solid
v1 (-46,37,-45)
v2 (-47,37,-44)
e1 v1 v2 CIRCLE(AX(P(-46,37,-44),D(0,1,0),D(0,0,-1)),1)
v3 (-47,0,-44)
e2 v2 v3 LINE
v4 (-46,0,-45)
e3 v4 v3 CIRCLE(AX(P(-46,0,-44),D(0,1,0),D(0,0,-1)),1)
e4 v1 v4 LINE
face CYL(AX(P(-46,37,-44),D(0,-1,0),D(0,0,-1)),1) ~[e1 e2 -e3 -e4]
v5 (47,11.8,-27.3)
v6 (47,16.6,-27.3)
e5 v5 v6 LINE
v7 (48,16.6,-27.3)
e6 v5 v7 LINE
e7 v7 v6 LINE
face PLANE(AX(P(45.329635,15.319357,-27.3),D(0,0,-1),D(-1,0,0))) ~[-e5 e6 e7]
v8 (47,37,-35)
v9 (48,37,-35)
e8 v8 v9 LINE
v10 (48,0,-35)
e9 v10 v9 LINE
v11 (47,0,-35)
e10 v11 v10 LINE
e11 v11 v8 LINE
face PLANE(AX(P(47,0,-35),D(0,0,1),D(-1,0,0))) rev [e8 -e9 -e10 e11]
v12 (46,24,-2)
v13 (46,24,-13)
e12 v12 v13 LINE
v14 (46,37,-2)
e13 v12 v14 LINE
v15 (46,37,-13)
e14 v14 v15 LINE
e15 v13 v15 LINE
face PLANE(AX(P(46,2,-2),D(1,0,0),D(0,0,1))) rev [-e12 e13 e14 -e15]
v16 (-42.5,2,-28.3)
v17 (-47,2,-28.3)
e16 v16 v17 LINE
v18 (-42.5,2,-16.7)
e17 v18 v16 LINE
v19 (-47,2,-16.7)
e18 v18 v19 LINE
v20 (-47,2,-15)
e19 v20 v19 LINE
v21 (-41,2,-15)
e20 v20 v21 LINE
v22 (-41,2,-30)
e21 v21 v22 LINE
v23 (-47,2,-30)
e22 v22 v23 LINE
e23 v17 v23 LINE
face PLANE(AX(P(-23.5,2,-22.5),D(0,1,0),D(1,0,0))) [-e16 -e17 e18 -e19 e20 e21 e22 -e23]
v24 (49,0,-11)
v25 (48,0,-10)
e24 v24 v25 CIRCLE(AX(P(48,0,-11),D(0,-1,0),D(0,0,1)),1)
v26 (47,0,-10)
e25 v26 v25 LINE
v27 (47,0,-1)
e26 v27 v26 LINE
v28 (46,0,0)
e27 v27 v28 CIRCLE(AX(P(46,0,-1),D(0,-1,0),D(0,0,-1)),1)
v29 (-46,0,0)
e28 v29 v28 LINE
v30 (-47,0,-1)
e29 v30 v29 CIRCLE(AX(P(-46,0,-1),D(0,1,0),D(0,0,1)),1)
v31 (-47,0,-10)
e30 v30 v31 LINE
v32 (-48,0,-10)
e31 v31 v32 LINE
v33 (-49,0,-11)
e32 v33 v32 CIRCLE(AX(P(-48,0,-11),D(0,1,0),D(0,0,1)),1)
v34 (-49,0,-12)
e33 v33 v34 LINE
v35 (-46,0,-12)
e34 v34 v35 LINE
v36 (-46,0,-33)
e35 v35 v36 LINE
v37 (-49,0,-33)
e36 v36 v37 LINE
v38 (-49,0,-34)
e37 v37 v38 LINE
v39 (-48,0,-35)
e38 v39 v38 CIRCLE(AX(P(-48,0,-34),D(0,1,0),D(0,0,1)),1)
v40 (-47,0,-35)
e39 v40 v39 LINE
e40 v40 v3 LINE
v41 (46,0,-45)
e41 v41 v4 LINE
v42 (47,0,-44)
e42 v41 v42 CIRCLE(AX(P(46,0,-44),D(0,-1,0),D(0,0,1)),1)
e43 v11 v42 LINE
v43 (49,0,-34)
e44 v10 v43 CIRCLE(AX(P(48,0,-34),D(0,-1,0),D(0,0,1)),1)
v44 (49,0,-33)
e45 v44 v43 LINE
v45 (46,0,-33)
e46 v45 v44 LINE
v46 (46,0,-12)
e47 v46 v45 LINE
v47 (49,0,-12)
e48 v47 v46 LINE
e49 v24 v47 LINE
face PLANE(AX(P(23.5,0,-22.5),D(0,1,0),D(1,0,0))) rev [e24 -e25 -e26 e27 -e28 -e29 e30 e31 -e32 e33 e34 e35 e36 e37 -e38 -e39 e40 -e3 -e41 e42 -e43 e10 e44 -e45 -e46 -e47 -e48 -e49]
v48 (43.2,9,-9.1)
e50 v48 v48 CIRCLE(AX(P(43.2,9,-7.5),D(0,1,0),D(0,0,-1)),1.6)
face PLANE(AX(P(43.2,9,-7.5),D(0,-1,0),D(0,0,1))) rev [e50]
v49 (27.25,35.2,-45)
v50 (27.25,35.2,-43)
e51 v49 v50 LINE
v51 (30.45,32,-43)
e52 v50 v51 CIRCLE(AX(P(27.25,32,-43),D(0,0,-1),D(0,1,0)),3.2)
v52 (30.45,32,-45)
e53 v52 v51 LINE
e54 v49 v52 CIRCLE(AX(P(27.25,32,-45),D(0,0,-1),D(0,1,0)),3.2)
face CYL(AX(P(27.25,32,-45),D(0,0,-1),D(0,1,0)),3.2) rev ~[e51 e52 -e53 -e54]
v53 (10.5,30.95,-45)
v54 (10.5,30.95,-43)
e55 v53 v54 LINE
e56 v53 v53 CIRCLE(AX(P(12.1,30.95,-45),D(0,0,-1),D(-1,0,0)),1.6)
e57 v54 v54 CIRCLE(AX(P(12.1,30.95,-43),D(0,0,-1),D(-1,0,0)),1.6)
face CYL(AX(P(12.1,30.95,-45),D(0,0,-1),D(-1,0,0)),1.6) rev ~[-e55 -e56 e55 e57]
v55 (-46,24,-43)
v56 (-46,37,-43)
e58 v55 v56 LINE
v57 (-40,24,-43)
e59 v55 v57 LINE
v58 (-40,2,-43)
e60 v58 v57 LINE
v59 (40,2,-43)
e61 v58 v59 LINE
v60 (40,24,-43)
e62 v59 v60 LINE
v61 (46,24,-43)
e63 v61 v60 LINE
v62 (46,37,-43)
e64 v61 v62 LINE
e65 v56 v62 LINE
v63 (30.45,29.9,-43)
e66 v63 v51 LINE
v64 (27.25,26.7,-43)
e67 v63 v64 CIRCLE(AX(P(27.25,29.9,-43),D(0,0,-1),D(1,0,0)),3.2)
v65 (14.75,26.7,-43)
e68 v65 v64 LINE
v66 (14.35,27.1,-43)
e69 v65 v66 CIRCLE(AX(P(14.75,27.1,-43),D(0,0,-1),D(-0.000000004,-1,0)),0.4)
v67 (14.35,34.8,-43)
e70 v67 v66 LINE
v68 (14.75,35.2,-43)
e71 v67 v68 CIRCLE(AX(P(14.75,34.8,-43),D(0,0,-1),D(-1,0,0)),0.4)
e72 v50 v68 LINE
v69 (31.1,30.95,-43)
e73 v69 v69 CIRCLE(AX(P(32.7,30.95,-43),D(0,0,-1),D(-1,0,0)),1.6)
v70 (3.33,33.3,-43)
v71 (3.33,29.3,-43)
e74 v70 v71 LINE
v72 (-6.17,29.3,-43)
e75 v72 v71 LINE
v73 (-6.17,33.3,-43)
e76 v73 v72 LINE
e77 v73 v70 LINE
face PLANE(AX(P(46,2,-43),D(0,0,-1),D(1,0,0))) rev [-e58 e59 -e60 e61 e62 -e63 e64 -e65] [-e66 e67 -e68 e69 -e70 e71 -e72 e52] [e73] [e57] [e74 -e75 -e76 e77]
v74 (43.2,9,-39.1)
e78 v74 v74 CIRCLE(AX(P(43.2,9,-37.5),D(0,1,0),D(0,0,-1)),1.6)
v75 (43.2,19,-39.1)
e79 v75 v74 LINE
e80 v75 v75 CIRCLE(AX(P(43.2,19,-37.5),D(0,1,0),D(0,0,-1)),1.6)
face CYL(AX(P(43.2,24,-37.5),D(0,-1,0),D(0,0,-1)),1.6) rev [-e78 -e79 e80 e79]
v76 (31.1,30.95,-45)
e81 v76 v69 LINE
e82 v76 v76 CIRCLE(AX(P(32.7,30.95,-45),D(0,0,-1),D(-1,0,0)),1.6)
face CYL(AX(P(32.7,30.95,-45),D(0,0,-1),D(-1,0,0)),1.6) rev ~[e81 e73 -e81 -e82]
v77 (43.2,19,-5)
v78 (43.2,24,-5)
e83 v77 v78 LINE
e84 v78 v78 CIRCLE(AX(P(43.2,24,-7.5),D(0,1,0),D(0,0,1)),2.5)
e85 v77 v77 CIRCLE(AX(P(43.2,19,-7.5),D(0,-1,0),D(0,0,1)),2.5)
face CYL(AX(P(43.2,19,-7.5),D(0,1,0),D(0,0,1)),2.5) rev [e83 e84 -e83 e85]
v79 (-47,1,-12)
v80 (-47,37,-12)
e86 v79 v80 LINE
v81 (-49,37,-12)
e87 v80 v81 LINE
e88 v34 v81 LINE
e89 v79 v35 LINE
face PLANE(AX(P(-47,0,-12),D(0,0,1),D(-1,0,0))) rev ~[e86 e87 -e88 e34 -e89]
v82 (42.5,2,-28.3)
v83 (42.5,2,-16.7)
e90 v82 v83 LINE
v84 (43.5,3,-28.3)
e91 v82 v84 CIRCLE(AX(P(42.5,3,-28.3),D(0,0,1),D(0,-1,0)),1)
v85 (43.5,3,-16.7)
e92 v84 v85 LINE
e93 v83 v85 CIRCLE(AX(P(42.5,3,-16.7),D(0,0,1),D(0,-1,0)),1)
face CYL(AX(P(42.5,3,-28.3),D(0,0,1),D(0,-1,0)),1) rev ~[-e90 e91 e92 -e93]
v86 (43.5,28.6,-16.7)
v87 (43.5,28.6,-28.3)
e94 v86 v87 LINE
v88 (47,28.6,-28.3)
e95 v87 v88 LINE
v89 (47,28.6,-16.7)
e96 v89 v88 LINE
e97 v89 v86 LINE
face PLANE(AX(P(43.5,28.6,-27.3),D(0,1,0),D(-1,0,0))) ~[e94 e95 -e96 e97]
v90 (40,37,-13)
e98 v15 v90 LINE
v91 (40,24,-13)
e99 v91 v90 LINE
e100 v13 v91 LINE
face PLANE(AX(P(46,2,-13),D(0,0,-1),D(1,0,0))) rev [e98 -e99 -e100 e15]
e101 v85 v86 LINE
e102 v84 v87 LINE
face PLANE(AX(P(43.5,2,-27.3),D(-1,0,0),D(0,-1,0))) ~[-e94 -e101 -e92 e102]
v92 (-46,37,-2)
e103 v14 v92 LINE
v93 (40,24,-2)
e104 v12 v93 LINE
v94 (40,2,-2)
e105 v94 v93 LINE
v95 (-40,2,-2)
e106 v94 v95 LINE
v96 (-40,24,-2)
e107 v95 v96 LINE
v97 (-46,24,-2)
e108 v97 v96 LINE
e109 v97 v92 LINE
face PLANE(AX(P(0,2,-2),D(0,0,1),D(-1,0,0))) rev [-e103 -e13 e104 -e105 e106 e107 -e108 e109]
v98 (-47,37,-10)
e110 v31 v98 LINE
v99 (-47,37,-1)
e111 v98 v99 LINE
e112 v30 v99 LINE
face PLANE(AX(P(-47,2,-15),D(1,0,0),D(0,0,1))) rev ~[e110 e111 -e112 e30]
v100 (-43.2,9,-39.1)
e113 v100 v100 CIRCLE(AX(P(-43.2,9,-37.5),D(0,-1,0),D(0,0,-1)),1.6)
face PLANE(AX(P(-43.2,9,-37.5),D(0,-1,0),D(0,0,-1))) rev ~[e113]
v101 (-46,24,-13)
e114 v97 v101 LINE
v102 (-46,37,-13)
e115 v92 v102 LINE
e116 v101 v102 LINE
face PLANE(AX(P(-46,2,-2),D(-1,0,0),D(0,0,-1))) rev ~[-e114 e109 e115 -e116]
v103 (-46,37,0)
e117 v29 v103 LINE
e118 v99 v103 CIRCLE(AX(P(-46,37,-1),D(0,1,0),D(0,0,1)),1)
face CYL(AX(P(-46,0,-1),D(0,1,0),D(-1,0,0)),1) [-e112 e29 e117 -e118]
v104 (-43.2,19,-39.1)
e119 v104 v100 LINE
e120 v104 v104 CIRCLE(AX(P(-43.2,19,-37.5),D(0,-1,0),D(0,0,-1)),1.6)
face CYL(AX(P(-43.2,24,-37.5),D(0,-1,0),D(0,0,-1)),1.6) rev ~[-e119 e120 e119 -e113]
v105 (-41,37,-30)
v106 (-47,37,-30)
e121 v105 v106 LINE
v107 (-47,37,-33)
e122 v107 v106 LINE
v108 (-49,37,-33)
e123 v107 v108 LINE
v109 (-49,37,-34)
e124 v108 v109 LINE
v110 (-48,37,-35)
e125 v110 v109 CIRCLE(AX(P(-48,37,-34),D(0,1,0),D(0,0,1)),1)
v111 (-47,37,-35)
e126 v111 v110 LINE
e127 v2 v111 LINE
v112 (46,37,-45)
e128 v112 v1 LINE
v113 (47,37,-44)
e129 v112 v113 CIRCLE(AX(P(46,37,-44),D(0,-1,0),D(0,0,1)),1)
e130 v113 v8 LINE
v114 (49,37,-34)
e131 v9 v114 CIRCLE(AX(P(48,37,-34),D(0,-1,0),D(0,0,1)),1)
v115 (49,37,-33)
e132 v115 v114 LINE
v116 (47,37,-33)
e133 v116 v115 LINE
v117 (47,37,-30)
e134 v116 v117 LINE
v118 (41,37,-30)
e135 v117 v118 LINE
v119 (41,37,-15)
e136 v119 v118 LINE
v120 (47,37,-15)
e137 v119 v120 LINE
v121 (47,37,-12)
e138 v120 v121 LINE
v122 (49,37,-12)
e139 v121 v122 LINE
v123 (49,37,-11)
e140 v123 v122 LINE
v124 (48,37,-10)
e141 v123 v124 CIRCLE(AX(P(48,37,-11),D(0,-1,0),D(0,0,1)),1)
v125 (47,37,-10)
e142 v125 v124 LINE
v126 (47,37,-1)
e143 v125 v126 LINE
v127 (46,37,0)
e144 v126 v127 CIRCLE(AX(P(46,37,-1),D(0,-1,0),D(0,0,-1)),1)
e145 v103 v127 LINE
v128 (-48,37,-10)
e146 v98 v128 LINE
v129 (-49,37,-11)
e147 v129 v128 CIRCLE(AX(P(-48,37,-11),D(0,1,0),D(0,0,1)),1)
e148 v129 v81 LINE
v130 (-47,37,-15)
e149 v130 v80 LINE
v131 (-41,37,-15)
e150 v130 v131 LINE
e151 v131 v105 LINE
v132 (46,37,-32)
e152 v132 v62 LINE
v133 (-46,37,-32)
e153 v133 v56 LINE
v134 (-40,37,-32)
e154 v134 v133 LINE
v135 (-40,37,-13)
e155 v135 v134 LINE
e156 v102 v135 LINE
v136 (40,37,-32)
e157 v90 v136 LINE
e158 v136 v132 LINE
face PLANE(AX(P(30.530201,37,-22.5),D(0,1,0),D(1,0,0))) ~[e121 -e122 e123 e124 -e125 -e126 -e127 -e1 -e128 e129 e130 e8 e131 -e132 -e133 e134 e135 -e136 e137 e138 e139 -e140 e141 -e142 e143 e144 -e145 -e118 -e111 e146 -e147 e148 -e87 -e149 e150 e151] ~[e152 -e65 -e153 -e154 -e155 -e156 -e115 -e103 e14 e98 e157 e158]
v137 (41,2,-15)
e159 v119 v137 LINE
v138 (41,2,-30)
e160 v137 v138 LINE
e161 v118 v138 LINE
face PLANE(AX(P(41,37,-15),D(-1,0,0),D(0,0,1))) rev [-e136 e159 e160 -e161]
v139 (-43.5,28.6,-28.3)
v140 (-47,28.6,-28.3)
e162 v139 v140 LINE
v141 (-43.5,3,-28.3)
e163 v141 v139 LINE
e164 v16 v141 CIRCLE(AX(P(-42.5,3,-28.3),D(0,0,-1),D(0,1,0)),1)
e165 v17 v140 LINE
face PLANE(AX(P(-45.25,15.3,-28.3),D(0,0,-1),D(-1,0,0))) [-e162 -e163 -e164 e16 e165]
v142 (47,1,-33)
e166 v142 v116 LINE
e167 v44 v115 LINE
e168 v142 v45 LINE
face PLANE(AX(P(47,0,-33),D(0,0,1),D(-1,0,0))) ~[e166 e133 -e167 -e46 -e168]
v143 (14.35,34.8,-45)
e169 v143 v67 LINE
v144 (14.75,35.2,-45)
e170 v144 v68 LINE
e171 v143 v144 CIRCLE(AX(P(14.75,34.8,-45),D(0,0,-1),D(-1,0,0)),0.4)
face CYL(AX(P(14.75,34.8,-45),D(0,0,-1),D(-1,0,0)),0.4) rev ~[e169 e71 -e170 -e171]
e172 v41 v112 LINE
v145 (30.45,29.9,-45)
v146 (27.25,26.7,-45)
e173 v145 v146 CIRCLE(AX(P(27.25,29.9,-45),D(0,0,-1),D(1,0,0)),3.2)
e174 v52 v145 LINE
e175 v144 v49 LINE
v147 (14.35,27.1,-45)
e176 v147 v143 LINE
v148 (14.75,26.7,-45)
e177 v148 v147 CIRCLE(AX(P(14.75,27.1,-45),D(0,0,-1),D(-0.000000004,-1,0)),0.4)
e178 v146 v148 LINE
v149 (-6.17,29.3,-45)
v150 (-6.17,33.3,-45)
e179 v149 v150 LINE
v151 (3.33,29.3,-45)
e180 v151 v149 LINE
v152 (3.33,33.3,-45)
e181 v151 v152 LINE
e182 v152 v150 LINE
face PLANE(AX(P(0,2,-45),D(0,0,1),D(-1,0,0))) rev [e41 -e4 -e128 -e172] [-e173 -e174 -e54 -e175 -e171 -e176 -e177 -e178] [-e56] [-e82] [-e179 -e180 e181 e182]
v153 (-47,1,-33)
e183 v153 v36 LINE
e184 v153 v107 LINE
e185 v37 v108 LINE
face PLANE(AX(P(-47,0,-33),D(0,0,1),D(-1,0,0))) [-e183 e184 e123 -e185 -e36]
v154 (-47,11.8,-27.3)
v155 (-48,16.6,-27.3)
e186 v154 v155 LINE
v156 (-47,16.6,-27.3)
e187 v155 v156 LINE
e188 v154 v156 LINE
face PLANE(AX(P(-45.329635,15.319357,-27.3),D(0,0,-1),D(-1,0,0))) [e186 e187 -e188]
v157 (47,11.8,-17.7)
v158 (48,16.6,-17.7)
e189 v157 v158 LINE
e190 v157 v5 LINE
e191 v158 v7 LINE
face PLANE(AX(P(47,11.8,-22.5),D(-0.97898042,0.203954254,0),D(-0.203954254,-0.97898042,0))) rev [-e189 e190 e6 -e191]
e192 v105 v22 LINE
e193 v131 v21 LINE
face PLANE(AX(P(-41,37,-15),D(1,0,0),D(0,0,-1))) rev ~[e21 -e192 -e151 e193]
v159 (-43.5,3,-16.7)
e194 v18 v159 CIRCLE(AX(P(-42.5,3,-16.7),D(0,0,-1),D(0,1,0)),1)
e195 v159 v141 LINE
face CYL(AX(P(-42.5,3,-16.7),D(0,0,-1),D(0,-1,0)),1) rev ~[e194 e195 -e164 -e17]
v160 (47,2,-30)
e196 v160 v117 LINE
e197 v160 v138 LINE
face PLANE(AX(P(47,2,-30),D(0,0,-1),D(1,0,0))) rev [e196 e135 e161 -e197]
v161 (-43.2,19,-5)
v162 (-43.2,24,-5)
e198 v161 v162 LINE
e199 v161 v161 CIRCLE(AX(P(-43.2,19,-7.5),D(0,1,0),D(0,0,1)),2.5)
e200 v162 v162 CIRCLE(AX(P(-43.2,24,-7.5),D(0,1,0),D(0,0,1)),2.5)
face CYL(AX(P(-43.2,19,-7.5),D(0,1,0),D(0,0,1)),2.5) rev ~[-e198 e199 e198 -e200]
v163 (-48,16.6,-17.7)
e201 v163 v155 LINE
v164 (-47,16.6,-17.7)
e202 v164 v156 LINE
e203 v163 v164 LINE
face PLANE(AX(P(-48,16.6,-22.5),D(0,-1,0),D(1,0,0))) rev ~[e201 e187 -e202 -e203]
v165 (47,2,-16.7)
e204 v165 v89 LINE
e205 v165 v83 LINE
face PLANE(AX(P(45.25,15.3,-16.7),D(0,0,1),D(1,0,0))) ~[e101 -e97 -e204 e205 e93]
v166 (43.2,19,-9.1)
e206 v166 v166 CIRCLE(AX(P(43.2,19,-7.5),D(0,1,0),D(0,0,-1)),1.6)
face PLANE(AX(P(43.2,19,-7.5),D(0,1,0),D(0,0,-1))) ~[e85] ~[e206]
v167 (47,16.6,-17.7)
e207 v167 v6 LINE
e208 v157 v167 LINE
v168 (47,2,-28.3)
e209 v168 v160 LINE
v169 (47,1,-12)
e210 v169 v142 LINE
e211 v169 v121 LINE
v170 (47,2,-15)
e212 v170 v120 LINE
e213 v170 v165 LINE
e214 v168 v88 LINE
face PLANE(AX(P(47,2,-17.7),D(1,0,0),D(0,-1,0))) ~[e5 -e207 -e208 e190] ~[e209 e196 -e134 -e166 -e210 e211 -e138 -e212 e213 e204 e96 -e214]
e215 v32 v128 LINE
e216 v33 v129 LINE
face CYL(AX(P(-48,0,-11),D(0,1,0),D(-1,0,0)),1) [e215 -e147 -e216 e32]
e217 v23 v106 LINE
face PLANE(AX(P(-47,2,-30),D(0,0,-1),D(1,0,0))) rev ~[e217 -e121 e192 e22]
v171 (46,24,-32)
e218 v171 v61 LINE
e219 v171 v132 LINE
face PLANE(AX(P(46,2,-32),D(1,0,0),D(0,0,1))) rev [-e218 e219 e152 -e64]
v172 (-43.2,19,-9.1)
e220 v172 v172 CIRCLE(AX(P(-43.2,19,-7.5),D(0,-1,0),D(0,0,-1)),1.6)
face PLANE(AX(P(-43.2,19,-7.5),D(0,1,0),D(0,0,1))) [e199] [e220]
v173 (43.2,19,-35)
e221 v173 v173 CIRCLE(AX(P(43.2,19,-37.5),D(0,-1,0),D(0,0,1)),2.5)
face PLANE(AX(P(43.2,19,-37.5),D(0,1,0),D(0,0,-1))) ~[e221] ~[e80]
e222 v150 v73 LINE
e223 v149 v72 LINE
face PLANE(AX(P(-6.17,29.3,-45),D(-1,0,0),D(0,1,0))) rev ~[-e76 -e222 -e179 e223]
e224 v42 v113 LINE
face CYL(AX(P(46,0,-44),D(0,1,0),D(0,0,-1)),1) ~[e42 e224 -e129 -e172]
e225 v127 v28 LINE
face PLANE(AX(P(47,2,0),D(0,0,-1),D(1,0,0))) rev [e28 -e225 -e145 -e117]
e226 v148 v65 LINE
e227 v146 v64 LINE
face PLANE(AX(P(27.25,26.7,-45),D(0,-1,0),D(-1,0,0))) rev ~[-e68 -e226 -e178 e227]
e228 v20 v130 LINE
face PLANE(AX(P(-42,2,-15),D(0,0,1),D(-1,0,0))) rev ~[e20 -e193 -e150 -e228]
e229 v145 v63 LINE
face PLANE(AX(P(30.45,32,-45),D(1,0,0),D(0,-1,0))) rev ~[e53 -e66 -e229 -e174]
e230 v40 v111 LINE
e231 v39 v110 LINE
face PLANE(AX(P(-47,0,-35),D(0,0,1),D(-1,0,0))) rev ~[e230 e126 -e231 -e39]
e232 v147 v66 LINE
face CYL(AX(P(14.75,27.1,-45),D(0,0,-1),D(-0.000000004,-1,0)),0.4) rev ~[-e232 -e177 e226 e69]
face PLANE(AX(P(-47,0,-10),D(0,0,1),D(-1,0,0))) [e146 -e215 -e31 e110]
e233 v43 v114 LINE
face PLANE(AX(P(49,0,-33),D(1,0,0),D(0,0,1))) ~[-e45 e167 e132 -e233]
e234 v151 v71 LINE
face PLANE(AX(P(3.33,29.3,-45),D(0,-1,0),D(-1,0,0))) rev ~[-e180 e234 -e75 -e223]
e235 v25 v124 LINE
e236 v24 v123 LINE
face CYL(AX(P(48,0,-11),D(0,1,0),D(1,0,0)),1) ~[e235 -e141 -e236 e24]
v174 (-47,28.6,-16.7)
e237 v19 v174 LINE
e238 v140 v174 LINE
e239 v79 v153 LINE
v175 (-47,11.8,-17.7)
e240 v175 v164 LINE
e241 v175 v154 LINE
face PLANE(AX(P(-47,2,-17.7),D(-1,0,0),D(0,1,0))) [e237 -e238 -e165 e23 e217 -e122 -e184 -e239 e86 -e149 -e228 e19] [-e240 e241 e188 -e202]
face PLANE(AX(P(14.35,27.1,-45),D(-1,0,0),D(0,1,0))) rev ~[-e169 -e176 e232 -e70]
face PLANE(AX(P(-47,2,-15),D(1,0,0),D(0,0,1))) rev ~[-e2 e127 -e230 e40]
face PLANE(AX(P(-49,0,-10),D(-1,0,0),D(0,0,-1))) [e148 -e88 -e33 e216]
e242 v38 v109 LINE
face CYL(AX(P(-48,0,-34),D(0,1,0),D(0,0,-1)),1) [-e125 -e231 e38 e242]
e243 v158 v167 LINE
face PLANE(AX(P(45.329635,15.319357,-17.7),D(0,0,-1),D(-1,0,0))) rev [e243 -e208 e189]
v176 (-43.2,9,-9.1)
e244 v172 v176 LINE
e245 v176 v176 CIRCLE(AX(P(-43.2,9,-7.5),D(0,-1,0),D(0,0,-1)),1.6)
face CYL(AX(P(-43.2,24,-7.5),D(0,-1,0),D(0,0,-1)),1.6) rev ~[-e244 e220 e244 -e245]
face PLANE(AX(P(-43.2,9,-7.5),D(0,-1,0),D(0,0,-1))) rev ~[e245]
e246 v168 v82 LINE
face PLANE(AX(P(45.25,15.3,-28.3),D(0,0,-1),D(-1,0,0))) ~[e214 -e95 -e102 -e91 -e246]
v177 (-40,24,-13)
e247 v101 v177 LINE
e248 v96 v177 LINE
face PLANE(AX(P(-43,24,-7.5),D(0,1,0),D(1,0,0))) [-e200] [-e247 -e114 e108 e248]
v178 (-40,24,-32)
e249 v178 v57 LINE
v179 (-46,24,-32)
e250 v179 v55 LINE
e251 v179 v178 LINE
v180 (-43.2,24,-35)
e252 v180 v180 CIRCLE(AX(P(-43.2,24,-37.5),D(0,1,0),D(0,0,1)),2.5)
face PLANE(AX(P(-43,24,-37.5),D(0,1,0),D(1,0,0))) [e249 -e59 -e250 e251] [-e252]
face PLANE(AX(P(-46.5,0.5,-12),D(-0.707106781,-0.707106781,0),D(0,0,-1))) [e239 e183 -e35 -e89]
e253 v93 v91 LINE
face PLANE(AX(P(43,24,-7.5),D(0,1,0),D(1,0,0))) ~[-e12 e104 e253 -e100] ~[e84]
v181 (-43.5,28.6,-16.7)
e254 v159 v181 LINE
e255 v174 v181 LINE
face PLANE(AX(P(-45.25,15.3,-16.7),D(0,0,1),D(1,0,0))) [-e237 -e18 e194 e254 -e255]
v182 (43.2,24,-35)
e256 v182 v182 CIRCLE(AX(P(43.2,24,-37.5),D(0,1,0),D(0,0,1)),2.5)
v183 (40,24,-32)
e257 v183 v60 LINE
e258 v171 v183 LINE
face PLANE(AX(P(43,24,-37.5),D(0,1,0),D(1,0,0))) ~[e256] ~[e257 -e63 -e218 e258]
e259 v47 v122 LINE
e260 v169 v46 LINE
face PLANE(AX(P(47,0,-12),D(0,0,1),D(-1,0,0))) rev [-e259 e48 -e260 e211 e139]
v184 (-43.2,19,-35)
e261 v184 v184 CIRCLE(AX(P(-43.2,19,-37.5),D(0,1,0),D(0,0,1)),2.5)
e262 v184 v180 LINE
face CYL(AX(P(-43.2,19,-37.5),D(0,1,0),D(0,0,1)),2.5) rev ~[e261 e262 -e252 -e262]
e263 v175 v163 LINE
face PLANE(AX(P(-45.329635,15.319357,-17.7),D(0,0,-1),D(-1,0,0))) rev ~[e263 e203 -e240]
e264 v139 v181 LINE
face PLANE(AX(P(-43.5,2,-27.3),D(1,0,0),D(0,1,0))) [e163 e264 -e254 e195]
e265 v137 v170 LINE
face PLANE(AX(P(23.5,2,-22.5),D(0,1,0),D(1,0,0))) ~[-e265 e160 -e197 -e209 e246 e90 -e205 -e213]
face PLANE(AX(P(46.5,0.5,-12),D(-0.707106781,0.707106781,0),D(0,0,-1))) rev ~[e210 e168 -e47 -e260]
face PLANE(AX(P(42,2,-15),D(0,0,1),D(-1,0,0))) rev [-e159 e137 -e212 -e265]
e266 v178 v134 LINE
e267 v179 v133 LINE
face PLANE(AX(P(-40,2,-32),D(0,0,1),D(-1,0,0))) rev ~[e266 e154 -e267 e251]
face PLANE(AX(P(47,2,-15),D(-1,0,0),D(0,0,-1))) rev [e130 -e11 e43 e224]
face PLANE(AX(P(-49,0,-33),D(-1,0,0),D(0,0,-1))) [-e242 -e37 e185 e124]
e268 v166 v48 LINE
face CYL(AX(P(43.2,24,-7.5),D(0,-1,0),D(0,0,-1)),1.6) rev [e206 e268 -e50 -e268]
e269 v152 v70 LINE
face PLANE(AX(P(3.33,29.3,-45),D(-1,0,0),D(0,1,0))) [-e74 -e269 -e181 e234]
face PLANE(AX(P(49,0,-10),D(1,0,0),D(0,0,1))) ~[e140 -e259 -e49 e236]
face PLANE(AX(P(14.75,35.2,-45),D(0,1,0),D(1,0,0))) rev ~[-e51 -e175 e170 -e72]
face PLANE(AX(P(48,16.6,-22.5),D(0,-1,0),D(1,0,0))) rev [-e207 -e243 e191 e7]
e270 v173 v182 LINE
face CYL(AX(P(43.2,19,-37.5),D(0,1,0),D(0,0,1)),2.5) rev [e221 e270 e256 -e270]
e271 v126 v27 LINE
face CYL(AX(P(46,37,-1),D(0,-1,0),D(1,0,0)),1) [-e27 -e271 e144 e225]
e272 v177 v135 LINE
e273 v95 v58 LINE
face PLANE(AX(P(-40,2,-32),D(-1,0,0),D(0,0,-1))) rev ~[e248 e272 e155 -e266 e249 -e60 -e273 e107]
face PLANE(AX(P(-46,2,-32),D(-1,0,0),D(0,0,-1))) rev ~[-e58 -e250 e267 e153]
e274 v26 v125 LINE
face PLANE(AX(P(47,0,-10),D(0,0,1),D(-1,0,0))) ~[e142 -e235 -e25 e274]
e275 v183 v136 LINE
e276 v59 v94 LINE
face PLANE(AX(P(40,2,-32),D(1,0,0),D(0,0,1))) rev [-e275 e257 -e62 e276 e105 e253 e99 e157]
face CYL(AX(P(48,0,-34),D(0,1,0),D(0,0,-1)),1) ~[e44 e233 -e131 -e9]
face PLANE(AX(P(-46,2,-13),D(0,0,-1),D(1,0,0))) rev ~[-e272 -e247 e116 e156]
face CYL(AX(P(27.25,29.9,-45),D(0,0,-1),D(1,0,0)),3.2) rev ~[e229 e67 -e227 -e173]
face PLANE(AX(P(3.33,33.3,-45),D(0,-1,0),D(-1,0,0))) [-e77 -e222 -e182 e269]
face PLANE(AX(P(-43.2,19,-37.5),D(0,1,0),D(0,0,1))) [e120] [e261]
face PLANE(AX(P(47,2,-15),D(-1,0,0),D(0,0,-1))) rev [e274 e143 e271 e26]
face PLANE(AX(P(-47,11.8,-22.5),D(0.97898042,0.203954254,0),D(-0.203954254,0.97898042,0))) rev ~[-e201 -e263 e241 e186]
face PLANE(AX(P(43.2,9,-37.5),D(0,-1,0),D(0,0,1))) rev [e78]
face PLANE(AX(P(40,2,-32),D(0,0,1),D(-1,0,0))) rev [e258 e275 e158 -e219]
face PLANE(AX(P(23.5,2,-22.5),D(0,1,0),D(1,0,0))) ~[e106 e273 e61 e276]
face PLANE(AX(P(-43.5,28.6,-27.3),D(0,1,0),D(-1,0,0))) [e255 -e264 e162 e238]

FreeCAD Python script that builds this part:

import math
import FreeCAD as App
import Part
import Sketcher
from FreeCAD import Vector


def edges_at(feature, points):
    """Names of the edges that pass closest to the given points."""
    edges = feature.Shape.Edges
    near = lambda p: min(range(len(edges)), key=lambda i: edges[i].distToShape(Part.Vertex(*p))[0])
    return sorted({f"Edge{near(p) + 1}" for p in points})

doc = App.newDocument("Part")
params = doc.addObject("Spreadsheet::Sheet", "Params")
for row, (alias, value) in enumerate([
    ("sketch1_width", "47 mm"),
    ("sketch1_height", "45 mm"),
    ("pad1_length", "2 mm"),
    ("sketch2_width", "5 mm"),
    ("sketch2_width2", "47 mm"),
    ("sketch2_width3", "46 mm"),
    ("sketch2_width4", "6 mm"),
    ("sketch2_height", "15 mm"),
    ("pad2_length", "35 mm"),
    ("sketch3_width", "1 mm"),
    ("sketch3_height", "12 mm"),
    ("sketch3_width2", "3.5 mm"),
    ("sketch3_height2", "9.8 mm"),
    ("sketch3_height3", "26.6 mm"),
    ("pad3_length", "9.6 mm"),
    ("sketch4_width", "2 mm"),
    ("pad4_length", "37 mm"),
    ("sketch5_width", "6 mm"),
    ("sketch5_height", "11 mm"),
    ("pad5_length", "22 mm"),
    ("sketch6_width", "3.5 mm"),
    ("sketch6_height", "26.6 mm"),
    ("pad6_length", "1 mm"),
    ("sketch7_width", "3.5 mm"),
    ("sketch7_height", "26.6 mm"),
    ("pad7_length", "1 mm"),
    ("sketch8_diameter", "3.2 mm"),
    ("hole_diameter", "3.2 mm"),
    ("hole_depth", "15 mm"),
    ("hole_cbore_diameter", "5 mm"),
    ("hole_cbore_depth", "5 mm"),
    ("fillet_radius", "1 mm"),
    ("fillet2_radius", "1 mm"),
    ("sketch9_width", "1 mm"),
    ("sketch9_height", "15 mm"),
    ("pocket1_length", "35 mm"),
    ("fillet3_radius", "1 mm"),
    ("fillet4_radius", "1 mm"),
    ("chamfer_size", "1 mm"),
    ("sketch10_diameter", "3.2 mm"),
    ("sketch10_radius", "3.2 mm"),
    ("sketch10_radius2", "0.4 mm"),
    ("sketch10_width", "12.5 mm"),
    ("sketch10_height", "2.1 mm"),
    ("pocket2_length", "10 mm"),
    ("sketch11_height", "4 mm"),
    ("sketch11_width", "9.5 mm"),
    ("pocket3_length", "10 mm"),
], start=1):
    params.set(f"A{row}", alias)
    params.set(f"B{row}", "=" + value)
    params.setAlias(f"B{row}", alias)

body = doc.addObject("PartDesign::Body", "Body")

# Sketch on XZ plane
sketch1 = body.newObject("Sketcher::SketchObject", "Sketch")
sketch1.AttachmentSupport = (doc.getObject("XZ_Plane"), [""])
sketch1.MapMode = "FlatFace"
sketch1.addGeometry([
    Part.LineSegment(Vector(-47, -45, 0), Vector(-47, 0, 0)),
    Part.LineSegment(Vector(-47, 0, 0), Vector(0, 0, 0)),
    Part.LineSegment(Vector(0, 0, 0), Vector(0, -45, 0)),
    Part.LineSegment(Vector(0, -45, 0), Vector(-47, -45, 0)),
], False)
sketch1.addConstraint([
    Sketcher.Constraint("Coincident", 0, 2, 1, 1),
    Sketcher.Constraint("Coincident", 1, 2, 2, 1),
    Sketcher.Constraint("Coincident", 2, 2, 3, 1),
    Sketcher.Constraint("Coincident", 3, 2, 0, 1),
    Sketcher.Constraint("Vertical", 0),
    Sketcher.Constraint("Horizontal", 1),
    Sketcher.Constraint("Vertical", 2),
    Sketcher.Constraint("Horizontal", 3),
    Sketcher.Constraint("Coincident", 1, 2, -1, 1),
    Sketcher.Constraint("DistanceX", 1, 1, 1, 2, 47.0),
    Sketcher.Constraint("DistanceY", 0, 1, 0, 2, 45.0),
])
sketch1.setExpression("Constraints[9]", "Params.sketch1_width")
sketch1.setExpression("Constraints[10]", "Params.sketch1_height")
pad1 = body.newObject("PartDesign::Pad", "Pad")
pad1.Profile = sketch1
pad1.setExpression("Length", "Params.pad1_length")
pad1.Reversed = True

# Sketch on XZ plane
sketch2 = body.newObject("Sketcher::SketchObject", "Sketch001")
sketch2.AttachmentSupport = (doc.getObject("XZ_Plane"), [""])
sketch2.MapMode = "FlatFace"
sketch2.AttachmentOffset = App.Placement(Vector(0, 0, -2), App.Rotation())
sketch2.addGeometry([
    Part.LineSegment(Vector(-42, -15, 0), Vector(-47, -15, 0)),  # 0
    Part.LineSegment(Vector(-47, -15, 0), Vector(-47, 0, 0)),  # 1
    Part.LineSegment(Vector(-47, 0, 0), Vector(0, 0, 0)),  # 2
    Part.LineSegment(Vector(0, 0, 0), Vector(0, -2, 0)),  # 3
    Part.LineSegment(Vector(0, -2, 0), Vector(-46, -2, 0)),  # 4
    Part.LineSegment(Vector(-46, -2, 0), Vector(-46, -13, 0)),  # 5
    Part.LineSegment(Vector(-46, -13, 0), Vector(-40, -13, 0)),  # 6
    Part.LineSegment(Vector(-40, -13, 0), Vector(-40, -32, 0)),  # 7
    Part.LineSegment(Vector(-40, -32, 0), Vector(-46, -32, 0)),  # 8
    Part.LineSegment(Vector(-46, -32, 0), Vector(-46, -43, 0)),  # 9
    Part.LineSegment(Vector(-46, -43, 0), Vector(0, -43, 0)),  # 10
    Part.LineSegment(Vector(0, -43, 0), Vector(0, -45, 0)),  # 11
    Part.LineSegment(Vector(0, -45, 0), Vector(-47, -45, 0)),  # 12
    Part.LineSegment(Vector(-47, -45, 0), Vector(-47, -30, 0)),  # 13
    Part.LineSegment(Vector(-47, -30, 0), Vector(-42, -30, 0)),  # 14
    Part.LineSegment(Vector(-42, -30, 0), Vector(-42, -15, 0)),  # 15
], False)
sketch2.addConstraint([
    Sketcher.Constraint("Coincident", 0, 2, 1, 1),
    Sketcher.Constraint("Coincident", 1, 2, 2, 1),
    Sketcher.Constraint("Coincident", 2, 2, 3, 1),
    Sketcher.Constraint("Coincident", 3, 2, 4, 1),
    Sketcher.Constraint("Coincident", 4, 2, 5, 1),
    Sketcher.Constraint("Coincident", 5, 2, 6, 1),
    Sketcher.Constraint("Coincident", 6, 2, 7, 1),
    Sketcher.Constraint("Coincident", 7, 2, 8, 1),
    Sketcher.Constraint("Coincident", 8, 2, 9, 1),
    Sketcher.Constraint("Coincident", 9, 2, 10, 1),
    Sketcher.Constraint("Coincident", 10, 2, 11, 1),
    Sketcher.Constraint("Coincident", 11, 2, 12, 1),
    Sketcher.Constraint("Coincident", 12, 2, 13, 1),
    Sketcher.Constraint("Coincident", 13, 2, 14, 1),
    Sketcher.Constraint("Coincident", 14, 2, 15, 1),
    Sketcher.Constraint("Coincident", 15, 2, 0, 1),
    Sketcher.Constraint("Horizontal", 0),
    Sketcher.Constraint("Vertical", 1),
    Sketcher.Constraint("Horizontal", 2),
    Sketcher.Constraint("Vertical", 3),
    Sketcher.Constraint("Horizontal", 4),
    Sketcher.Constraint("Vertical", 5),
    Sketcher.Constraint("Horizontal", 6),
    Sketcher.Constraint("Vertical", 7),
    Sketcher.Constraint("Horizontal", 8),
    Sketcher.Constraint("Vertical", 9),
    Sketcher.Constraint("Horizontal", 10),
    Sketcher.Constraint("Vertical", 11),
    Sketcher.Constraint("Horizontal", 12),
    Sketcher.Constraint("Vertical", 13),
    Sketcher.Constraint("Horizontal", 14),
    Sketcher.Constraint("Vertical", 15),
    Sketcher.Constraint("Coincident", 2, 2, -1, 1),
    Sketcher.Constraint("PointOnObject", 10, 2, -2),
    Sketcher.Constraint("Vertical", 5, 2, 8, 2),
    Sketcher.Constraint("Vertical", 1, 2, 12, 2),
    Sketcher.Constraint("Equal", 5, 9),
    Sketcher.Constraint("Equal", 3, 11),
    Sketcher.Constraint("Equal", 1, 13),
    Sketcher.Constraint("Equal", 13, 15),
    Sketcher.Constraint("DistanceX", 0, 2, 0, 1, 5.0),
    Sketcher.Constraint("DistanceX", 2, 1, 2, 2, 47.0),
    Sketcher.Constraint("DistanceX", 4, 2, 4, 1, 46.0),
    Sketcher.Constraint("DistanceX", 6, 1, 6, 2, 6.0),
    Sketcher.Constraint("DistanceY", 1, 1, 1, 2, 15.0),
    Sketcher.Constraint("DistanceY", 3, 2, 3, 1, 2.0),
    Sketcher.Constraint("DistanceY", 5, 2, 5, 1, 11.0),
])
sketch2.setExpression("Constraints[40]", "Params.sketch2_width")
sketch2.setExpression("Constraints[41]", "Params.sketch2_width2")
sketch2.setExpression("Constraints[42]", "Params.sketch2_width3")
sketch2.setExpression("Constraints[43]", "Params.sketch2_width4")
sketch2.setExpression("Constraints[44]", "Params.sketch2_height")
pad2 = body.newObject("PartDesign::Pad", "Pad001")
pad2.Profile = sketch2
pad2.setExpression("Length", "Params.pad2_length")
pad2.Reversed = True

# Sketch on XY plane
sketch3 = body.newObject("Sketcher::SketchObject", "Sketch002")
sketch3.AttachmentSupport = (doc.getObject("XY_Plane"), [""])
sketch3.MapMode = "FlatFace"
sketch3.AttachmentOffset = App.Placement(Vector(0, 0, -22.5), App.Rotation())
sketch3.addGeometry([
    Part.LineSegment(Vector(-47, 11.8, 0), Vector(-47, 2, 0)),  # 0
    Part.LineSegment(Vector(-47, 2, 0), Vector(-43.5, 2, 0)),  # 1
    Part.LineSegment(Vector(-43.5, 2, 0), Vector(-43.5, 28.6, 0)),  # 2
    Part.LineSegment(Vector(-43.5, 28.6, 0), Vector(-47, 28.6, 0)),  # 3
    Part.LineSegment(Vector(-47, 28.6, 0), Vector(-47, 16.6, 0)),  # 4
    Part.LineSegment(Vector(-47, 16.6, 0), Vector(-48, 16.6, 0)),  # 5
    Part.LineSegment(Vector(-48, 16.6, 0), Vector(-47, 11.8, 0)),  # 6
], False)
sketch3.addConstraint([
    Sketcher.Constraint("Coincident", 0, 2, 1, 1),
    Sketcher.Constraint("Coincident", 1, 2, 2, 1),
    Sketcher.Constraint("Coincident", 2, 2, 3, 1),
    Sketcher.Constraint("Coincident", 3, 2, 4, 1),
    Sketcher.Constraint("Coincident", 4, 2, 5, 1),
    Sketcher.Constraint("Coincident", 5, 2, 6, 1),
    Sketcher.Constraint("Coincident", 6, 2, 0, 1),
    Sketcher.Constraint("Vertical", 0),
    Sketcher.Constraint("Horizontal", 1),
    Sketcher.Constraint("Vertical", 2),
    Sketcher.Constraint("Horizontal", 3),
    Sketcher.Constraint("Vertical", 4),
    Sketcher.Constraint("Horizontal", 5),
    Sketcher.Constraint("Vertical", 0, 2, 3, 2),
    Sketcher.Constraint("DistanceX", 5, 2, 5, 1, 1.0),
    Sketcher.Constraint("DistanceY", 4, 2, 4, 1, 12.0),
    Sketcher.Constraint("DistanceX", 1, 1, 1, 2, 3.5),
    Sketcher.Constraint("DistanceY", 0, 2, 0, 1, 9.8),
    Sketcher.Constraint("DistanceY", 2, 1, 2, 2, 26.6),
    Sketcher.Constraint("DistanceX", 0, 2, -1, 1, 47.0),
    Sketcher.Constraint("DistanceY", -1, 1, 0, 2, 2.0),
])
sketch3.setExpression("Constraints[14]", "Params.sketch3_width")
sketch3.setExpression("Constraints[15]", "Params.sketch3_height")
sketch3.setExpression("Constraints[16]", "Params.sketch3_width2")
sketch3.setExpression("Constraints[17]", "Params.sketch3_height2")
sketch3.setExpression("Constraints[18]", "Params.sketch3_height3")
pad3 = body.newObject("PartDesign::Pad", "Pad002")
pad3.Profile = sketch3
pad3.setExpression("Length", "Params.pad3_length")
pad3.Midplane = True

# Sketch on XZ plane
sketch4 = body.newObject("Sketcher::SketchObject", "Sketch003")
sketch4.AttachmentSupport = (doc.getObject("XZ_Plane"), [""])
sketch4.MapMode = "FlatFace"
sketch4.addGeometry([
    Part.LineSegment(Vector(-47, -35, 0), Vector(-47, -33, 0)),  # 0
    Part.LineSegment(Vector(-47, -33, 0), Vector(-49, -33, 0)),  # 1
    Part.LineSegment(Vector(-49, -33, 0), Vector(-49, -35, 0)),  # 2
    Part.LineSegment(Vector(-49, -35, 0), Vector(-47, -35, 0)),  # 3
    Part.LineSegment(Vector(-47, -12, 0), Vector(-47, -10, 0)),  # 4
    Part.LineSegment(Vector(-47, -10, 0), Vector(-49, -10, 0)),  # 5
    Part.LineSegment(Vector(-49, -10, 0), Vector(-49, -12, 0)),  # 6
    Part.LineSegment(Vector(-49, -12, 0), Vector(-47, -12, 0)),  # 7
], False)
sketch4.addConstraint([
    Sketcher.Constraint("Coincident", 0, 2, 1, 1),
    Sketcher.Constraint("Coincident", 1, 2, 2, 1),
    Sketcher.Constraint("Coincident", 2, 2, 3, 1),
    Sketcher.Constraint("Coincident", 3, 2, 0, 1),
    Sketcher.Constraint("Coincident", 4, 2, 5, 1),
    Sketcher.Constraint("Coincident", 5, 2, 6, 1),
    Sketcher.Constraint("Coincident", 6, 2, 7, 1),
    Sketcher.Constraint("Coincident", 7, 2, 4, 1),
    Sketcher.Constraint("Vertical", 0),
    Sketcher.Constraint("Horizontal", 1),
    Sketcher.Constraint("Vertical", 2),
    Sketcher.Constraint("Horizontal", 3),
    Sketcher.Constraint("Vertical", 4),
    Sketcher.Constraint("Horizontal", 5),
    Sketcher.Constraint("Vertical", 6),
    Sketcher.Constraint("Horizontal", 7),
    Sketcher.Constraint("Vertical", 3, 2, 4, 2),
    Sketcher.Constraint("Vertical", 2, 2, 5, 2),
    Sketcher.Constraint("Equal", 7, 0),
    Sketcher.Constraint("Equal", 2, 4),
    Sketcher.Constraint("DistanceX", 1, 2, 1, 1, 2.0),
    Sketcher.Constraint("DistanceX", 0, 2, -1, 1, 47.0),
    Sketcher.Constraint("DistanceY", 0, 2, -1, 1, 33.0),
    Sketcher.Constraint("DistanceY", 4, 2, -1, 1, 10.0),
])
sketch4.setExpression("Constraints[20]", "Params.sketch4_width")
pad4 = body.newObject("PartDesign::Pad", "Pad003")
pad4.Profile = sketch4
pad4.setExpression("Length", "Params.pad4_length")
pad4.Reversed = True

# Sketch on XZ plane
sketch5 = body.newObject("Sketcher::SketchObject", "Sketch004")
sketch5.AttachmentSupport = (doc.getObject("XZ_Plane"), [""])
sketch5.MapMode = "FlatFace"
sketch5.AttachmentOffset = App.Placement(Vector(0, 0, -2), App.Rotation())
sketch5.addGeometry([
    Part.LineSegment(Vector(-46, -43, 0), Vector(-46, -32, 0)),  # 0
    Part.LineSegment(Vector(-46, -32, 0), Vector(-40, -32, 0)),  # 1
    Part.LineSegment(Vector(-40, -32, 0), Vector(-40, -43, 0)),  # 2
    Part.LineSegment(Vector(-40, -43, 0), Vector(-46, -43, 0)),  # 3
    Part.LineSegment(Vector(-46, -13, 0), Vector(-46, -2, 0)),  # 4
    Part.LineSegment(Vector(-46, -2, 0), Vector(-40, -2, 0)),  # 5
    Part.LineSegment(Vector(-40, -2, 0), Vector(-40, -13, 0)),  # 6
    Part.LineSegment(Vector(-40, -13, 0), Vector(-46, -13, 0)),  # 7
], False)
sketch5.addConstraint([
    Sketcher.Constraint("Coincident", 0, 2, 1, 1),
    Sketcher.Constraint("Coincident", 1, 2, 2, 1),
    Sketcher.Constraint("Coincident", 2, 2, 3, 1),
    Sketcher.Constraint("Coincident", 3, 2, 0, 1),
    Sketcher.Constraint("Coincident", 4, 2, 5, 1),
    Sketcher.Constraint("Coincident", 5, 2, 6, 1),
    Sketcher.Constraint("Coincident", 6, 2, 7, 1),
    Sketcher.Constraint("Coincident", 7, 2, 4, 1),
    Sketcher.Constraint("Vertical", 0),
    Sketcher.Constraint("Horizontal", 1),
    Sketcher.Constraint("Vertical", 2),
    Sketcher.Constraint("Horizontal", 3),
    Sketcher.Constraint("Vertical", 4),
    Sketcher.Constraint("Horizontal", 5),
    Sketcher.Constraint("Vertical", 6),
    Sketcher.Constraint("Horizontal", 7),
    Sketcher.Constraint("Vertical", 3, 2, 4, 2),
    Sketcher.Constraint("Vertical", 2, 2, 5, 2),
    Sketcher.Constraint("Equal", 2, 4),
    Sketcher.Constraint("DistanceX", 1, 1, 1, 2, 6.0),
    Sketcher.Constraint("DistanceY", 0, 1, 0, 2, 11.0),
    Sketcher.Constraint("DistanceX", 0, 2, -1, 1, 46.0),
    Sketcher.Constraint("DistanceY", 0, 2, -1, 1, 32.0),
    Sketcher.Constraint("DistanceY", 4, 2, -1, 1, 2.0),
])
sketch5.setExpression("Constraints[19]", "Params.sketch5_width")
sketch5.setExpression("Constraints[20]", "Params.sketch5_height")
pad5 = body.newObject("PartDesign::Pad", "Pad004")
pad5.Profile = sketch5
pad5.setExpression("Length", "Params.pad5_length")
pad5.Reversed = True

# Sketch on XY plane
sketch6 = body.newObject("Sketcher::SketchObject", "Sketch005")
sketch6.AttachmentSupport = (doc.getObject("XY_Plane"), [""])
sketch6.MapMode = "FlatFace"
sketch6.AttachmentOffset = App.Placement(Vector(0, 0, -17.7), App.Rotation())
sketch6.addGeometry([
    Part.LineSegment(Vector(-47, 28.6, 0), Vector(-47, 2, 0)),
    Part.LineSegment(Vector(-47, 2, 0), Vector(-43.5, 2, 0)),
    Part.LineSegment(Vector(-43.5, 2, 0), Vector(-43.5, 28.6, 0)),
    Part.LineSegment(Vector(-43.5, 28.6, 0), Vector(-47, 28.6, 0)),
], False)
sketch6.addConstraint([
    Sketcher.Constraint("Coincident", 0, 2, 1, 1),
    Sketcher.Constraint("Coincident", 1, 2, 2, 1),
    Sketcher.Constraint("Coincident", 2, 2, 3, 1),
    Sketcher.Constraint("Coincident", 3, 2, 0, 1),
    Sketcher.Constraint("Vertical", 0),
    Sketcher.Constraint("Horizontal", 1),
    Sketcher.Constraint("Vertical", 2),
    Sketcher.Constraint("Horizontal", 3),
    Sketcher.Constraint("DistanceX", 1, 1, 1, 2, 3.5),
    Sketcher.Constraint("DistanceY", 0, 2, 0, 1, 26.6),
    Sketcher.Constraint("DistanceX", 0, 2, -1, 1, 47.0),
    Sketcher.Constraint("DistanceY", -1, 1, 0, 2, 2.0),
])
sketch6.setExpression("Constraints[8]", "Params.sketch6_width")
sketch6.setExpression("Constraints[9]", "Params.sketch6_height")
pad6 = body.newObject("PartDesign::Pad", "Pad005")
pad6.Profile = sketch6
pad6.setExpression("Length", "Params.pad6_length")

# Sketch on XY plane
sketch7 = body.newObject("Sketcher::SketchObject", "Sketch006")
sketch7.AttachmentSupport = (doc.getObject("XY_Plane"), [""])
sketch7.MapMode = "FlatFace"
sketch7.AttachmentOffset = App.Placement(Vector(0, 0, -27.3), App.Rotation())
sketch7.addGeometry([
    Part.LineSegment(Vector(-43.5, 28.6, 0), Vector(-43.5, 2, 0)),
    Part.LineSegment(Vector(-43.5, 2, 0), Vector(-47, 2, 0)),
    Part.LineSegment(Vector(-47, 2, 0), Vector(-47, 28.6, 0)),
    Part.LineSegment(Vector(-47, 28.6, 0), Vector(-43.5, 28.6, 0)),
], False)
sketch7.addConstraint([
    Sketcher.Constraint("Coincident", 0, 2, 1, 1),
    Sketcher.Constraint("Coincident", 1, 2, 2, 1),
    Sketcher.Constraint("Coincident", 2, 2, 3, 1),
    Sketcher.Constraint("Coincident", 3, 2, 0, 1),
    Sketcher.Constraint("Vertical", 0),
    Sketcher.Constraint("Horizontal", 1),
    Sketcher.Constraint("Vertical", 2),
    Sketcher.Constraint("Horizontal", 3),
    Sketcher.Constraint("DistanceX", 1, 2, 1, 1, 3.5),
    Sketcher.Constraint("DistanceY", 0, 2, 0, 1, 26.6),
    Sketcher.Constraint("DistanceY", -1, 1, 0, 2, 2.0),
    Sketcher.Constraint("DistanceX", 1, 2, -1, 1, 47.0),
])
sketch7.setExpression("Constraints[8]", "Params.sketch7_width")
sketch7.setExpression("Constraints[9]", "Params.sketch7_height")
pad7 = body.newObject("PartDesign::Pad", "Pad006")
pad7.Profile = sketch7
pad7.setExpression("Length", "Params.pad7_length")
pad7.Reversed = True

# Sketch on XZ plane
sketch8 = body.newObject("Sketcher::SketchObject", "Sketch007")
sketch8.AttachmentSupport = (doc.getObject("XZ_Plane"), [""])
sketch8.MapMode = "FlatFace"
sketch8.AttachmentOffset = App.Placement(Vector(0, 0, -24), App.Rotation())
sketch8.addGeometry([
    Part.Circle(Vector(-43.2, -7.5, 0), Vector(0, 0, 1), 1.6),
    Part.Circle(Vector(-43.2, -37.5, 0), Vector(0, 0, 1), 1.6),
], False)
sketch8.addConstraint([
    Sketcher.Constraint("Equal", 0, 1),
    Sketcher.Constraint("Vertical", 0, 3, 1, 3),
    Sketcher.Constraint("Diameter", 0, 3.2),
    Sketcher.Constraint("DistanceY", 1, 3, 0, 3, 30.0),
    Sketcher.Constraint("DistanceX", 0, 3, -1, 1, 43.2),
    Sketcher.Constraint("DistanceY", 0, 3, -1, 1, 7.5),
])
sketch8.setExpression("Constraints[2]", "Params.sketch8_diameter")
doc.recompute()
hole = body.newObject("PartDesign::Hole", "Hole")
hole.Profile = sketch8
hole.ThreadType = "None"
hole.setExpression("Diameter", "Params.hole_diameter")
hole.DepthType = "Dimension"
hole.setExpression("Depth", "Params.hole_depth")
hole.DrillPoint = "Flat"
hole.HoleCutType = "Counterbore"
hole.setExpression("HoleCutDiameter", "Params.hole_cbore_diameter")
hole.setExpression("HoleCutDepth", "Params.hole_cbore_depth")
hole.Reversed = True
doc.recompute()

fillet = body.newObject("PartDesign::Fillet", "Fillet")
fillet.Base = (hole, edges_at(hole, [
    (-47, 18.5, 0),
    (-47, 18.5, -45),
    (-49, 18.5, -35),
    (-49, 18.5, -10),
]))
fillet.setExpression("Radius", "Params.fillet_radius")
doc.recompute()

fillet2 = body.newObject("PartDesign::Fillet", "Fillet001")
fillet2.Base = (fillet, edges_at(fillet, [(-43.5, 2, -22.5)]))
fillet2.setExpression("Radius", "Params.fillet2_radius")

# Sketch on XZ plane
sketch9 = body.newObject("Sketcher::SketchObject", "Sketch008")
sketch9.AttachmentSupport = (doc.getObject("XZ_Plane"), [""])
sketch9.MapMode = "FlatFace"
sketch9.AttachmentOffset = App.Placement(Vector(0, 0, -37), App.Rotation())
sketch9.addGeometry([
    Part.LineSegment(Vector(-42, -30, 0), Vector(-42, -15, 0)),
    Part.LineSegment(Vector(-42, -15, 0), Vector(-41, -15, 0)),
    Part.LineSegment(Vector(-41, -15, 0), Vector(-41, -30, 0)),
    Part.LineSegment(Vector(-41, -30, 0), Vector(-42, -30, 0)),
], False)
sketch9.addConstraint([
    Sketcher.Constraint("Coincident", 0, 2, 1, 1),
    Sketcher.Constraint("Coincident", 1, 2, 2, 1),
    Sketcher.Constraint("Coincident", 2, 2, 3, 1),
    Sketcher.Constraint("Coincident", 3, 2, 0, 1),
    Sketcher.Constraint("Vertical", 0),
    Sketcher.Constraint("Horizontal", 1),
    Sketcher.Constraint("Vertical", 2),
    Sketcher.Constraint("Horizontal", 3),
    Sketcher.Constraint("DistanceX", 1, 1, 1, 2, 1.0),
    Sketcher.Constraint("DistanceY", 0, 1, 0, 2, 15.0),
    Sketcher.Constraint("DistanceX", 0, 2, -1, 1, 42.0),
    Sketcher.Constraint("DistanceY", 0, 2, -1, 1, 15.0),
])
sketch9.setExpression("Constraints[8]", "Params.sketch9_width")
sketch9.setExpression("Constraints[9]", "Params.sketch9_height")
pocket1 = body.newObject("PartDesign::Pocket", "Pocket")
pocket1.Profile = sketch9
pocket1.setExpression("Length", "Params.pocket1_length")
pocket1.Reversed = True
doc.recompute()

mirrored = body.newObject("PartDesign::Mirrored", "Mirrored")
mirrored.Originals = [pad1, pad2, pad3, pad4, pad5, pad6, pad7, hole, pocket1]
mirrored.MirrorPlane = (doc.getObject("YZ_Plane"), [""])
body.Tip = mirrored
doc.recompute()

fillet3 = body.newObject("PartDesign::Fillet", "Fillet002")
fillet3.Base = (mirrored, edges_at(mirrored, [
    (47, 18.5, 0),
    (47, 18.5, -45),
    (49, 18.5, -35),
    (49, 18.5, -10),
]))
fillet3.setExpression("Radius", "Params.fillet3_radius")
doc.recompute()

fillet4 = body.newObject("PartDesign::Fillet", "Fillet003")
fillet4.Base = (fillet3, edges_at(fillet3, [(43.5, 2, -22.5)]))
fillet4.setExpression("Radius", "Params.fillet4_radius")
doc.recompute()

chamfer = body.newObject("PartDesign::Chamfer", "Chamfer")
chamfer.Base = (fillet4, edges_at(fillet4, [(47, 0, -22.5), (-47, 0, -22.5)]))
chamfer.setExpression("Size", "Params.chamfer_size")

# Sketch on XY plane
sketch10 = body.newObject("Sketcher::SketchObject", "Sketch009")
sketch10.AttachmentSupport = (doc.getObject("XY_Plane"), [""])
sketch10.MapMode = "FlatFace"
sketch10.AttachmentOffset = App.Placement(Vector(0, 0, -45), App.Rotation())
sketch10.addGeometry([
    Part.Circle(Vector(32.7, 30.95, 0), Vector(0, 0, 1), 1.6),  # 0
    Part.Circle(Vector(12.1, 30.95, 0), Vector(0, 0, 1), 1.6),  # 1
    Part.LineSegment(Vector(14.75, 35.2, 0), Vector(27.25, 35.2, 0)),  # 2
    Part.ArcOfCircle(Part.Circle(Vector(27.25, 32, 0), Vector(0, 0, 1), 3.2), math.radians(0), math.radians(90)),  # 3
    Part.LineSegment(Vector(30.45, 32, 0), Vector(30.45, 29.9, 0)),  # 4
    Part.ArcOfCircle(Part.Circle(Vector(27.25, 29.9, 0), Vector(0, 0, 1), 3.2), math.radians(-90), math.radians(0)),  # 5
    Part.LineSegment(Vector(27.25, 26.7, 0), Vector(14.75, 26.7, 0)),  # 6
    Part.ArcOfCircle(Part.Circle(Vector(14.75, 27.1, 0), Vector(0, 0, 1), 0.4), math.radians(-180), math.radians(-90)),  # 7
    Part.LineSegment(Vector(14.35, 27.1, 0), Vector(14.35, 34.8, 0)),  # 8
    Part.ArcOfCircle(Part.Circle(Vector(14.75, 34.8, 0), Vector(0, 0, 1), 0.4), math.radians(90), math.radians(180)),  # 9
], False)
sketch10.addConstraint([
    Sketcher.Constraint("Tangent", 2, 2, 3, 2),
    Sketcher.Constraint("Tangent", 3, 1, 4, 1),
    Sketcher.Constraint("Tangent", 4, 2, 5, 2),
    Sketcher.Constraint("Tangent", 5, 1, 6, 1),
    Sketcher.Constraint("Tangent", 6, 2, 7, 2),
    Sketcher.Constraint("Tangent", 7, 1, 8, 1),
    Sketcher.Constraint("Tangent", 8, 2, 9, 2),
    Sketcher.Constraint("Tangent", 9, 1, 2, 1),
    Sketcher.Constraint("Horizontal", 2),
    Sketcher.Constraint("Vertical", 4),
    Sketcher.Constraint("Horizontal", 6),
    Sketcher.Constraint("Vertical", 8),
    Sketcher.Constraint("Equal", 0, 1),
    Sketcher.Constraint("Equal", 3, 5),
    Sketcher.Constraint("Equal", 7, 9),
    Sketcher.Constraint("Horizontal", 0, 3, 1, 3),
    Sketcher.Constraint("Diameter", 0, 3.2),
    Sketcher.Constraint("Radius", 3, 3.2),
    Sketcher.Constraint("Radius", 7, 0.4),
    Sketcher.Constraint("DistanceX", 2, 1, 2, 2, 12.5),
    Sketcher.Constraint("DistanceY", 4, 2, 4, 1, 2.1),
    Sketcher.Constraint("DistanceY", -1, 1, 3, 3, 32.0),
    Sketcher.Constraint("DistanceX", -1, 1, 0, 3, 32.7),
    Sketcher.Constraint("DistanceX", -1, 1, 1, 3, 12.1),
    Sketcher.Constraint("DistanceY", -1, 1, 0, 3, 30.95),
    Sketcher.Constraint("DistanceX", -1, 1, 3, 3, 27.25),
])
sketch10.setExpression("Constraints[16]", "Params.sketch10_diameter")
sketch10.setExpression("Constraints[17]", "Params.sketch10_radius")
sketch10.setExpression("Constraints[18]", "Params.sketch10_radius2")
sketch10.setExpression("Constraints[19]", "Params.sketch10_width")
sketch10.setExpression("Constraints[20]", "Params.sketch10_height")
pocket2 = body.newObject("PartDesign::Pocket", "Pocket001")
pocket2.Profile = sketch10
pocket2.setExpression("Length", "Params.pocket2_length")
pocket2.Reversed = True

# Sketch on XY plane
sketch11 = body.newObject("Sketcher::SketchObject", "Sketch010")
sketch11.AttachmentSupport = (doc.getObject("XY_Plane"), [""])
sketch11.MapMode = "FlatFace"
sketch11.AttachmentOffset = App.Placement(Vector(0, 0, -45), App.Rotation())
sketch11.addGeometry([
    Part.LineSegment(Vector(3.3, 33.3, 0), Vector(3.3, 29.3, 0)),
    Part.LineSegment(Vector(3.3, 29.3, 0), Vector(-6.2, 29.3, 0)),
    Part.LineSegment(Vector(-6.2, 29.3, 0), Vector(-6.2, 33.3, 0)),
    Part.LineSegment(Vector(-6.2, 33.3, 0), Vector(3.3, 33.3, 0)),
], False)
sketch11.addConstraint([
    Sketcher.Constraint("Coincident", 0, 2, 1, 1),
    Sketcher.Constraint("Coincident", 1, 2, 2, 1),
    Sketcher.Constraint("Coincident", 2, 2, 3, 1),
    Sketcher.Constraint("Coincident", 3, 2, 0, 1),
    Sketcher.Constraint("Vertical", 0),
    Sketcher.Constraint("Horizontal", 1),
    Sketcher.Constraint("Vertical", 2),
    Sketcher.Constraint("Horizontal", 3),
    Sketcher.Constraint("DistanceY", 0, 2, 0, 1, 4.0),
    Sketcher.Constraint("DistanceX", 1, 2, 1, 1, 9.5),
    Sketcher.Constraint("DistanceY", -1, 1, 0, 2, 29.3),
    Sketcher.Constraint("DistanceX", -1, 1, 0, 2, 3.33),
])
sketch11.setExpression("Constraints[8]", "Params.sketch11_height")
sketch11.setExpression("Constraints[9]", "Params.sketch11_width")
pocket3 = body.newObject("PartDesign::Pocket", "Pocket002")
pocket3.Profile = sketch11
pocket3.setExpression("Length", "Params.pocket3_length")
pocket3.Reversed = True

doc.recompute()
